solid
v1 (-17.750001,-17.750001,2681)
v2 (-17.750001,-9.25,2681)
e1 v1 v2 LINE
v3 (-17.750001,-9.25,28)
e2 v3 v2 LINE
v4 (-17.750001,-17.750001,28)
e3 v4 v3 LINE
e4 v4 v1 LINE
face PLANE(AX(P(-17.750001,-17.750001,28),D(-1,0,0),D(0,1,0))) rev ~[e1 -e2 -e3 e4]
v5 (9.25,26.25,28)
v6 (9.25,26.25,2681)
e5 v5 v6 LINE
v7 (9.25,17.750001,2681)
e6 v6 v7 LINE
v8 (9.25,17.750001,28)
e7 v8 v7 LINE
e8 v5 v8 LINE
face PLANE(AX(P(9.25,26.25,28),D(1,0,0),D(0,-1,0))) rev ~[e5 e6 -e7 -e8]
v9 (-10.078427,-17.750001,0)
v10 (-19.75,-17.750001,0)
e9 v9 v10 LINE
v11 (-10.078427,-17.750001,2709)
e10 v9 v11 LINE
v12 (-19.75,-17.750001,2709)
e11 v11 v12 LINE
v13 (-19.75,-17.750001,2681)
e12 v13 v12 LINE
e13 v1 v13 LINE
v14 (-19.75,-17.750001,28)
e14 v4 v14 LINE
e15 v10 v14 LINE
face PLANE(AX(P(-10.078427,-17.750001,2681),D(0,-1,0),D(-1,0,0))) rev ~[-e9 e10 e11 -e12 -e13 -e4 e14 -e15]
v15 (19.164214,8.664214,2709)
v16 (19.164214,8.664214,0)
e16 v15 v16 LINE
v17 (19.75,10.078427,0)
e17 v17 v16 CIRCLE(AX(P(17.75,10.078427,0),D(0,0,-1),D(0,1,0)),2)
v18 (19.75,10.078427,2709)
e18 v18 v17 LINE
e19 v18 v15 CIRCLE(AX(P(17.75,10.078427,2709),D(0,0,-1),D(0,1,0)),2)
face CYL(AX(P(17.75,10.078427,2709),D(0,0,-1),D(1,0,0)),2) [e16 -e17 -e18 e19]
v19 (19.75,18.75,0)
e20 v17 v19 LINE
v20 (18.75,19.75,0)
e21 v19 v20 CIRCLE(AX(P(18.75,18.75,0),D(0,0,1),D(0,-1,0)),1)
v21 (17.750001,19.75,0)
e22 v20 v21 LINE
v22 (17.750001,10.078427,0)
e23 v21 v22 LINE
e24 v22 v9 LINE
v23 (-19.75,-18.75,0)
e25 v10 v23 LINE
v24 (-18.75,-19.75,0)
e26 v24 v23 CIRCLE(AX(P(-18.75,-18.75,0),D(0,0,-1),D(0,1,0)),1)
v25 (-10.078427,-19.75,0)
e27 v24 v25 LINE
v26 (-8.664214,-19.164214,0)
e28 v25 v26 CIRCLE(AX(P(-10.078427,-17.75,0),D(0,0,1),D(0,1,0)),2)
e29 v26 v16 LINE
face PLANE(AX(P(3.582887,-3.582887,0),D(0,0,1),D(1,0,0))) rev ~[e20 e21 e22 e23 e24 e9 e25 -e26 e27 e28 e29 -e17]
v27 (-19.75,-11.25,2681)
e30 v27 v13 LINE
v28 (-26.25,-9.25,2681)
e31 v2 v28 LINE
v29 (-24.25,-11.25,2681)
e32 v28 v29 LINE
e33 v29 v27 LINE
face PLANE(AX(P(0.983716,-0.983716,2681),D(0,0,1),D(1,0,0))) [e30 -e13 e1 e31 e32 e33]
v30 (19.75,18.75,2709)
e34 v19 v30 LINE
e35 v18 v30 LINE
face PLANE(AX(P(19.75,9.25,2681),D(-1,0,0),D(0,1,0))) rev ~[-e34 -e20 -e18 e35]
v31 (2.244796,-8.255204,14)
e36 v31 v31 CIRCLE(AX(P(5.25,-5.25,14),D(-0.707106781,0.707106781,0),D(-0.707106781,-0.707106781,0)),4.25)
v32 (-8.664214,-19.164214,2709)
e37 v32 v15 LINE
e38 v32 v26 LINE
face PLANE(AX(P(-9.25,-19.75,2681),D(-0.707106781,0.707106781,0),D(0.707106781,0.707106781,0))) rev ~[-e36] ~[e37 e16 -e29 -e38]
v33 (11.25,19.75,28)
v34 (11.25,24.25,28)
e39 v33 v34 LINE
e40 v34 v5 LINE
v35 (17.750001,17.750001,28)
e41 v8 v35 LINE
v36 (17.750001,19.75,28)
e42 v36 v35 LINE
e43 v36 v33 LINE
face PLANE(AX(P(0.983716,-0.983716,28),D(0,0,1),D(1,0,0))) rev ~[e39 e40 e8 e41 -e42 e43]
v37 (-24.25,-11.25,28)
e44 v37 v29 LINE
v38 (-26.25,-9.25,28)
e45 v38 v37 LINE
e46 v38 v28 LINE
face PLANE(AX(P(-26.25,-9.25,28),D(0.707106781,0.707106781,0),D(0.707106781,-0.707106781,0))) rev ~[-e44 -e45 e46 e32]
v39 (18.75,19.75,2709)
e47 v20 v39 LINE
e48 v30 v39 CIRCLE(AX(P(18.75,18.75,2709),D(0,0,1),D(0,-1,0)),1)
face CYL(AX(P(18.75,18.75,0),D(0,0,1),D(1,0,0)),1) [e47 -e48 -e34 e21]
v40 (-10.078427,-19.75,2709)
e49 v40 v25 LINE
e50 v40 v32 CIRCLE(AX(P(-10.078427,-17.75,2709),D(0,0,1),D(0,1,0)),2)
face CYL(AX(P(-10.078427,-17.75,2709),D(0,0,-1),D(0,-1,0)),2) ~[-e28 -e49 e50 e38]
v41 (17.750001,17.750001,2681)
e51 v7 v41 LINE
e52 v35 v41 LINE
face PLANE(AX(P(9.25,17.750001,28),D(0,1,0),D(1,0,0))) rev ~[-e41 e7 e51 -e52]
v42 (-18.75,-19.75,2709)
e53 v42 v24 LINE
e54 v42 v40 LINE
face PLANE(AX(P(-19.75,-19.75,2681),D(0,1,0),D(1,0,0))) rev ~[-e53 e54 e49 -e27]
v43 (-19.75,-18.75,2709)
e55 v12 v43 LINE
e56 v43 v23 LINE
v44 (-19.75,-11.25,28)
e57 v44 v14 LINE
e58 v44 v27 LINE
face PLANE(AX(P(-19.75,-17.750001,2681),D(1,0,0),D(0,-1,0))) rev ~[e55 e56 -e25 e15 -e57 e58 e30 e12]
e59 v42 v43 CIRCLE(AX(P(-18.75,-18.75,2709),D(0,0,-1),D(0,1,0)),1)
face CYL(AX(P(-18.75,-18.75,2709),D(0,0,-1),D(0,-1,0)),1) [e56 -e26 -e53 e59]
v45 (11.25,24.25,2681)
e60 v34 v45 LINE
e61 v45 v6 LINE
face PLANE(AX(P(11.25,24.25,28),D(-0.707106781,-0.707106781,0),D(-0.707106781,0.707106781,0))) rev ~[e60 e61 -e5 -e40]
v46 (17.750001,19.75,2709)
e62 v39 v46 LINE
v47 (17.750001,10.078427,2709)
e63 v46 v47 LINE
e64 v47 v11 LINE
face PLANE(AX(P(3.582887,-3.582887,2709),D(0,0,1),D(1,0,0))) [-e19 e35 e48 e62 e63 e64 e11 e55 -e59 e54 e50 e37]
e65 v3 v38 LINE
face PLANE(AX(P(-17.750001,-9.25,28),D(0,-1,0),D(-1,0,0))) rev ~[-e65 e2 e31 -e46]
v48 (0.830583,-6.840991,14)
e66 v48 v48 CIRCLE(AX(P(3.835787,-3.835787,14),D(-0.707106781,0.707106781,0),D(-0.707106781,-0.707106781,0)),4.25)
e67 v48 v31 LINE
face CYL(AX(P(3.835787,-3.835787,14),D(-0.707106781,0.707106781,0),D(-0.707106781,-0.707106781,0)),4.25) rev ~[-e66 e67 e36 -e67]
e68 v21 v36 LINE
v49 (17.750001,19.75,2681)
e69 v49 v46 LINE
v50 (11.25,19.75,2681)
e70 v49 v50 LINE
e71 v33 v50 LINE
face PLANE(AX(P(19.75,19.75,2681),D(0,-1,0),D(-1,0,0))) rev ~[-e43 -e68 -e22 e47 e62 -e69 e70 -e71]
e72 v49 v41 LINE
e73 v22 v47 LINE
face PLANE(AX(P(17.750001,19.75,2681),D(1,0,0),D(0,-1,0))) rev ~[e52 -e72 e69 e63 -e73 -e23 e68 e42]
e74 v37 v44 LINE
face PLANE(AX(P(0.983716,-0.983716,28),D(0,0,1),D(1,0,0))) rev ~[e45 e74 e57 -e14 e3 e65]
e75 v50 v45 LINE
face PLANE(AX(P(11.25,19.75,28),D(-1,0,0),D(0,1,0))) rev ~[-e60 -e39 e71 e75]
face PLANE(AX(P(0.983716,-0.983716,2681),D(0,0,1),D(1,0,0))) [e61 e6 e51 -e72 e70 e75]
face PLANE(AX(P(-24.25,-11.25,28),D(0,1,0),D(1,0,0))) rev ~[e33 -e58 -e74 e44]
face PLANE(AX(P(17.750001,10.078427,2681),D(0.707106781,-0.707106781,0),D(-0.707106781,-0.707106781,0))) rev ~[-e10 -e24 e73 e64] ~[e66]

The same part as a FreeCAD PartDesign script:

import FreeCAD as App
import Part
import Sketcher
Q = App.Units.Quantity


def edges_at(feature, points):
    """Names of the edges that pass closest to the given points."""
    edges = feature.Shape.Edges
    near = lambda p: min(range(len(edges)), key=lambda i: edges[i].distToShape(Part.Vertex(*p))[0])
    return sorted({f"Edge{near(p) + 1}" for p in points})


def add_polygon(sketch, points):
    """Adds a closed chain of lines whose ends are joined by coincident constraints."""
    first, n = sketch.GeometryCount, len(points)
    for a, b in zip(points, points[1:] + points[:1]):
        sketch.addGeometry(Part.LineSegment(App.Vector(*a, 0), App.Vector(*b, 0)), False)
    for i in range(n):
        sketch.addConstraint(Sketcher.Constraint("Coincident", first + i, 2, first + (i + 1) % n, 1))

doc = App.newDocument("Part")
params = doc.addObject("Spreadsheet::Sheet", "Params")
for row, (alias, value) in enumerate([
    ("sketch1_width", "1.999999 mm"),
    ("sketch1_width2", "10.5 mm"),
    ("pad1_length", "28 mm"),
    ("sketch2_width", "10.5 mm"),
    ("sketch2_width2", "8.5 mm"),
    ("sketch2_width3", "4.5 mm"),
    ("pad2_length", "2653 mm"),
    ("sketch3_width", "1.999999 mm"),
    ("sketch3_width2", "10.5 mm"),
    ("pad3_length", "28 mm"),
    ("fillet_radius", "2 mm"),
    ("fillet2_radius", "1 mm"),
    ("sketch4_diameter", "8.5 mm"),
    ("pocket1_length", "25 mm"),
], start=1):
    params.set(f"A{row}", alias)
    params.set(f"B{row}", "=" + value)
    params.setAlias(f"B{row}", alias)

body = doc.addObject("PartDesign::Body", "Body")

sketch1 = body.newObject("Sketcher::SketchObject", "Sketch")
sketch1.AttachmentSupport = (doc.getObject("XY_Plane"), [""])
sketch1.MapMode = "FlatFace"
add_polygon(sketch1, [(-19.8, -17.8), (-19.8, -19.8), (-9.2, -19.8), (19.8, 9.2), (19.8, 19.8), (17.8, 19.8), (17.8, 10.1), (-10.1, -17.8)])
sketch1.addConstraint([
    Sketcher.Constraint("Vertical", 0),
    Sketcher.Constraint("Horizontal", 1),
    Sketcher.Constraint("Vertical", 3),
    Sketcher.Constraint("Horizontal", 4),
    Sketcher.Constraint("Vertical", 5),
    Sketcher.Constraint("Horizontal", 7),
    Sketcher.Constraint("Symmetric", 0, 2, 3, 2, -1, 1),
    Sketcher.Constraint("Parallel", 2, 6),
    Sketcher.Constraint("Equal", 4, 0),
    Sketcher.Constraint("Equal", 1, 3),
    Sketcher.Constraint("Equal", 7, 5),
    Sketcher.Constraint("DistanceX", 4, 2, 4, 1, Q("1.999999 mm")),
    Sketcher.Constraint("DistanceX", 1, 1, 1, 2, Q("10.5 mm")),
    Sketcher.Constraint("DistanceX", 1, 2, 2, 2, Q("29 mm")),
    Sketcher.Constraint("Distance", 6, Q("39.35534 mm")),
])
sketch1.setExpression("Constraints[19]", "Params.sketch1_width")
sketch1.setExpression("Constraints[20]", "Params.sketch1_width2")
pad1 = body.newObject("PartDesign::Pad", "Pad")
pad1.Profile = sketch1
pad1.setExpression("Length", "Params.pad1_length")

sketch2 = body.newObject("Sketcher::SketchObject", "Sketch001")
sketch2.AttachmentSupport = (doc.getObject("XY_Plane"), [""])
sketch2.MapMode = "FlatFace"
sketch2.AttachmentOffset = App.Placement(App.Vector(0, 0, 28), App.Rotation())
add_polygon(sketch2, [(-19.8, -19.8), (-9.2, -19.8), (19.8, 9.2), (19.8, 19.8), (11.2, 19.8), (11.2, 24.2), (9.2, 26.2), (9.2, 17.8), (17.8, 17.8), (17.8, 10.1), (-10.1, -17.8), (-17.8, -17.8), (-17.8, -9.2), (-26.2, -9.2), (-24.2, -11.2), (-19.8, -11.2)])
sketch2.addConstraint([
    Sketcher.Constraint("Horizontal", 0),
    Sketcher.Constraint("Vertical", 2),
    Sketcher.Constraint("Horizontal", 3),
    Sketcher.Constraint("Vertical", 4),
    Sketcher.Constraint("Vertical", 6),
    Sketcher.Constraint("Horizontal", 7),
    Sketcher.Constraint("Vertical", 8),
    Sketcher.Constraint("Horizontal", 10),
    Sketcher.Constraint("Vertical", 11),
    Sketcher.Constraint("Horizontal", 12),
    Sketcher.Constraint("Horizontal", 14),
    Sketcher.Constraint("Vertical", 15),
    Sketcher.Constraint("Symmetric", 7, 2, 10, 2, -1, 1),
    Sketcher.Constraint("Symmetric", 2, 2, 15, 2, -1, 1),
    Sketcher.Constraint("Perpendicular", 1, 5),
    Sketcher.Constraint("Perpendicular", 5, 9),
    Sketcher.Constraint("Perpendicular", 9, 13),
    Sketcher.Constraint("Equal", 3, 7),
    Sketcher.Constraint("Equal", 3, 12),
    Sketcher.Constraint("Equal", 0, 2),
    Sketcher.Constraint("Equal", 14, 4),
    Sketcher.Constraint("Equal", 12, 6),
    Sketcher.Constraint("Equal", 10, 8),
    Sketcher.Constraint("Equal", 7, 11),
    Sketcher.Constraint("Equal", 11, 15),
    Sketcher.Constraint("DistanceX", 0, 1, 0, 2, Q("10.5 mm")),
    Sketcher.Constraint("DistanceX", 3, 2, 3, 1, Q("8.5 mm")),
    Sketcher.Constraint("DistanceX", 14, 1, 14, 2, Q("4.5 mm")),
    Sketcher.Constraint("DistanceX", 0, 2, 1, 2, Q("29 mm")),
    Sketcher.Constraint("Distance", 9, Q("39.35534 mm")),
])
sketch2.setExpression("Constraints[41]", "Params.sketch2_width")
sketch2.setExpression("Constraints[42]", "Params.sketch2_width2")
sketch2.setExpression("Constraints[43]", "Params.sketch2_width3")
pad2 = body.newObject("PartDesign::Pad", "Pad001")
pad2.Profile = sketch2
pad2.setExpression("Length", "Params.pad2_length")

sketch3 = body.newObject("Sketcher::SketchObject", "Sketch002")
sketch3.AttachmentSupport = (doc.getObject("XY_Plane"), [""])
sketch3.MapMode = "FlatFace"
sketch3.AttachmentOffset = App.Placement(App.Vector(0, 0, 2681), App.Rotation())
add_polygon(sketch3, [(19.8, 9.2), (19.8, 19.8), (17.8, 19.8), (17.8, 10.1), (-10.1, -17.8), (-19.8, -17.8), (-19.8, -19.8), (-9.2, -19.8)])
sketch3.addConstraint([
    Sketcher.Constraint("Vertical", 0),
    Sketcher.Constraint("Horizontal", 1),
    Sketcher.Constraint("Vertical", 2),
    Sketcher.Constraint("Horizontal", 4),
    Sketcher.Constraint("Vertical", 5),
    Sketcher.Constraint("Horizontal", 6),
    Sketcher.Constraint("Symmetric", 0, 2, 5, 2, -1, 1),
    Sketcher.Constraint("Parallel", 3, 7),
    Sketcher.Constraint("Equal", 6, 0),
    Sketcher.Constraint("Equal", 4, 2),
    Sketcher.Constraint("Equal", 1, 5),
    Sketcher.Constraint("DistanceX", 1, 2, 1, 1, Q("1.999999 mm")),
    Sketcher.Constraint("DistanceX", 6, 1, 6, 2, Q("10.5 mm")),
    Sketcher.Constraint("DistanceX", 6, 2, 2, 2, Q("27.000001 mm")),
    Sketcher.Constraint("Distance", 3, Q("39.35534 mm")),
])
sketch3.setExpression("Constraints[19]", "Params.sketch3_width")
sketch3.setExpression("Constraints[20]", "Params.sketch3_width2")
pad3 = body.newObject("PartDesign::Pad", "Pad002")
pad3.Profile = sketch3
pad3.setExpression("Length", "Params.pad3_length")
doc.recompute()

fillet = body.newObject("PartDesign::Fillet", "Fillet")
fillet.Base = (pad3, edges_at(pad3, [(19.75, 9.25, 1354.5), (-9.25, -19.75, 1354.5)]))
fillet.setExpression("Radius", "Params.fillet_radius")
doc.recompute()

fillet2 = body.newObject("PartDesign::Fillet", "Fillet001")
fillet2.Base = (fillet, edges_at(fillet, [(-19.75, -19.75, 1354.5), (19.75, 19.75, 1354.5)]))
fillet2.setExpression("Radius", "Params.fillet2_radius")

sketch4 = body.newObject("Sketcher::SketchObject", "Sketch003")
sketch4.Placement = App.Placement(App.Vector(3.835787, -3.835787, 0), App.Rotation(App.Vector(-0.707106781, -0.707106781, 0), App.Vector(0, 0, 0.999999999), App.Vector(-0.707106781, 0.707106781, 0), "ZXY"))
sketch4.addGeometry(Part.Circle(App.Vector(0, 14, 0), App.Vector(0, 0, 1), 4.2), False)
sketch4.addConstraint([
    Sketcher.Constraint("PointOnObject", 0, 3, -2),
    Sketcher.Constraint("Diameter", 0, Q("8.5 mm")),
    Sketcher.Constraint("DistanceY", -1, 1, 0, 3, Q("14 mm")),
])
sketch4.setExpression("Constraints[1]", "Params.sketch4_diameter")
pocket1 = body.newObject("PartDesign::Pocket", "Pocket")
pocket1.Profile = sketch4
pocket1.setExpression("Length", "Params.pocket1_length")

doc.recompute()
